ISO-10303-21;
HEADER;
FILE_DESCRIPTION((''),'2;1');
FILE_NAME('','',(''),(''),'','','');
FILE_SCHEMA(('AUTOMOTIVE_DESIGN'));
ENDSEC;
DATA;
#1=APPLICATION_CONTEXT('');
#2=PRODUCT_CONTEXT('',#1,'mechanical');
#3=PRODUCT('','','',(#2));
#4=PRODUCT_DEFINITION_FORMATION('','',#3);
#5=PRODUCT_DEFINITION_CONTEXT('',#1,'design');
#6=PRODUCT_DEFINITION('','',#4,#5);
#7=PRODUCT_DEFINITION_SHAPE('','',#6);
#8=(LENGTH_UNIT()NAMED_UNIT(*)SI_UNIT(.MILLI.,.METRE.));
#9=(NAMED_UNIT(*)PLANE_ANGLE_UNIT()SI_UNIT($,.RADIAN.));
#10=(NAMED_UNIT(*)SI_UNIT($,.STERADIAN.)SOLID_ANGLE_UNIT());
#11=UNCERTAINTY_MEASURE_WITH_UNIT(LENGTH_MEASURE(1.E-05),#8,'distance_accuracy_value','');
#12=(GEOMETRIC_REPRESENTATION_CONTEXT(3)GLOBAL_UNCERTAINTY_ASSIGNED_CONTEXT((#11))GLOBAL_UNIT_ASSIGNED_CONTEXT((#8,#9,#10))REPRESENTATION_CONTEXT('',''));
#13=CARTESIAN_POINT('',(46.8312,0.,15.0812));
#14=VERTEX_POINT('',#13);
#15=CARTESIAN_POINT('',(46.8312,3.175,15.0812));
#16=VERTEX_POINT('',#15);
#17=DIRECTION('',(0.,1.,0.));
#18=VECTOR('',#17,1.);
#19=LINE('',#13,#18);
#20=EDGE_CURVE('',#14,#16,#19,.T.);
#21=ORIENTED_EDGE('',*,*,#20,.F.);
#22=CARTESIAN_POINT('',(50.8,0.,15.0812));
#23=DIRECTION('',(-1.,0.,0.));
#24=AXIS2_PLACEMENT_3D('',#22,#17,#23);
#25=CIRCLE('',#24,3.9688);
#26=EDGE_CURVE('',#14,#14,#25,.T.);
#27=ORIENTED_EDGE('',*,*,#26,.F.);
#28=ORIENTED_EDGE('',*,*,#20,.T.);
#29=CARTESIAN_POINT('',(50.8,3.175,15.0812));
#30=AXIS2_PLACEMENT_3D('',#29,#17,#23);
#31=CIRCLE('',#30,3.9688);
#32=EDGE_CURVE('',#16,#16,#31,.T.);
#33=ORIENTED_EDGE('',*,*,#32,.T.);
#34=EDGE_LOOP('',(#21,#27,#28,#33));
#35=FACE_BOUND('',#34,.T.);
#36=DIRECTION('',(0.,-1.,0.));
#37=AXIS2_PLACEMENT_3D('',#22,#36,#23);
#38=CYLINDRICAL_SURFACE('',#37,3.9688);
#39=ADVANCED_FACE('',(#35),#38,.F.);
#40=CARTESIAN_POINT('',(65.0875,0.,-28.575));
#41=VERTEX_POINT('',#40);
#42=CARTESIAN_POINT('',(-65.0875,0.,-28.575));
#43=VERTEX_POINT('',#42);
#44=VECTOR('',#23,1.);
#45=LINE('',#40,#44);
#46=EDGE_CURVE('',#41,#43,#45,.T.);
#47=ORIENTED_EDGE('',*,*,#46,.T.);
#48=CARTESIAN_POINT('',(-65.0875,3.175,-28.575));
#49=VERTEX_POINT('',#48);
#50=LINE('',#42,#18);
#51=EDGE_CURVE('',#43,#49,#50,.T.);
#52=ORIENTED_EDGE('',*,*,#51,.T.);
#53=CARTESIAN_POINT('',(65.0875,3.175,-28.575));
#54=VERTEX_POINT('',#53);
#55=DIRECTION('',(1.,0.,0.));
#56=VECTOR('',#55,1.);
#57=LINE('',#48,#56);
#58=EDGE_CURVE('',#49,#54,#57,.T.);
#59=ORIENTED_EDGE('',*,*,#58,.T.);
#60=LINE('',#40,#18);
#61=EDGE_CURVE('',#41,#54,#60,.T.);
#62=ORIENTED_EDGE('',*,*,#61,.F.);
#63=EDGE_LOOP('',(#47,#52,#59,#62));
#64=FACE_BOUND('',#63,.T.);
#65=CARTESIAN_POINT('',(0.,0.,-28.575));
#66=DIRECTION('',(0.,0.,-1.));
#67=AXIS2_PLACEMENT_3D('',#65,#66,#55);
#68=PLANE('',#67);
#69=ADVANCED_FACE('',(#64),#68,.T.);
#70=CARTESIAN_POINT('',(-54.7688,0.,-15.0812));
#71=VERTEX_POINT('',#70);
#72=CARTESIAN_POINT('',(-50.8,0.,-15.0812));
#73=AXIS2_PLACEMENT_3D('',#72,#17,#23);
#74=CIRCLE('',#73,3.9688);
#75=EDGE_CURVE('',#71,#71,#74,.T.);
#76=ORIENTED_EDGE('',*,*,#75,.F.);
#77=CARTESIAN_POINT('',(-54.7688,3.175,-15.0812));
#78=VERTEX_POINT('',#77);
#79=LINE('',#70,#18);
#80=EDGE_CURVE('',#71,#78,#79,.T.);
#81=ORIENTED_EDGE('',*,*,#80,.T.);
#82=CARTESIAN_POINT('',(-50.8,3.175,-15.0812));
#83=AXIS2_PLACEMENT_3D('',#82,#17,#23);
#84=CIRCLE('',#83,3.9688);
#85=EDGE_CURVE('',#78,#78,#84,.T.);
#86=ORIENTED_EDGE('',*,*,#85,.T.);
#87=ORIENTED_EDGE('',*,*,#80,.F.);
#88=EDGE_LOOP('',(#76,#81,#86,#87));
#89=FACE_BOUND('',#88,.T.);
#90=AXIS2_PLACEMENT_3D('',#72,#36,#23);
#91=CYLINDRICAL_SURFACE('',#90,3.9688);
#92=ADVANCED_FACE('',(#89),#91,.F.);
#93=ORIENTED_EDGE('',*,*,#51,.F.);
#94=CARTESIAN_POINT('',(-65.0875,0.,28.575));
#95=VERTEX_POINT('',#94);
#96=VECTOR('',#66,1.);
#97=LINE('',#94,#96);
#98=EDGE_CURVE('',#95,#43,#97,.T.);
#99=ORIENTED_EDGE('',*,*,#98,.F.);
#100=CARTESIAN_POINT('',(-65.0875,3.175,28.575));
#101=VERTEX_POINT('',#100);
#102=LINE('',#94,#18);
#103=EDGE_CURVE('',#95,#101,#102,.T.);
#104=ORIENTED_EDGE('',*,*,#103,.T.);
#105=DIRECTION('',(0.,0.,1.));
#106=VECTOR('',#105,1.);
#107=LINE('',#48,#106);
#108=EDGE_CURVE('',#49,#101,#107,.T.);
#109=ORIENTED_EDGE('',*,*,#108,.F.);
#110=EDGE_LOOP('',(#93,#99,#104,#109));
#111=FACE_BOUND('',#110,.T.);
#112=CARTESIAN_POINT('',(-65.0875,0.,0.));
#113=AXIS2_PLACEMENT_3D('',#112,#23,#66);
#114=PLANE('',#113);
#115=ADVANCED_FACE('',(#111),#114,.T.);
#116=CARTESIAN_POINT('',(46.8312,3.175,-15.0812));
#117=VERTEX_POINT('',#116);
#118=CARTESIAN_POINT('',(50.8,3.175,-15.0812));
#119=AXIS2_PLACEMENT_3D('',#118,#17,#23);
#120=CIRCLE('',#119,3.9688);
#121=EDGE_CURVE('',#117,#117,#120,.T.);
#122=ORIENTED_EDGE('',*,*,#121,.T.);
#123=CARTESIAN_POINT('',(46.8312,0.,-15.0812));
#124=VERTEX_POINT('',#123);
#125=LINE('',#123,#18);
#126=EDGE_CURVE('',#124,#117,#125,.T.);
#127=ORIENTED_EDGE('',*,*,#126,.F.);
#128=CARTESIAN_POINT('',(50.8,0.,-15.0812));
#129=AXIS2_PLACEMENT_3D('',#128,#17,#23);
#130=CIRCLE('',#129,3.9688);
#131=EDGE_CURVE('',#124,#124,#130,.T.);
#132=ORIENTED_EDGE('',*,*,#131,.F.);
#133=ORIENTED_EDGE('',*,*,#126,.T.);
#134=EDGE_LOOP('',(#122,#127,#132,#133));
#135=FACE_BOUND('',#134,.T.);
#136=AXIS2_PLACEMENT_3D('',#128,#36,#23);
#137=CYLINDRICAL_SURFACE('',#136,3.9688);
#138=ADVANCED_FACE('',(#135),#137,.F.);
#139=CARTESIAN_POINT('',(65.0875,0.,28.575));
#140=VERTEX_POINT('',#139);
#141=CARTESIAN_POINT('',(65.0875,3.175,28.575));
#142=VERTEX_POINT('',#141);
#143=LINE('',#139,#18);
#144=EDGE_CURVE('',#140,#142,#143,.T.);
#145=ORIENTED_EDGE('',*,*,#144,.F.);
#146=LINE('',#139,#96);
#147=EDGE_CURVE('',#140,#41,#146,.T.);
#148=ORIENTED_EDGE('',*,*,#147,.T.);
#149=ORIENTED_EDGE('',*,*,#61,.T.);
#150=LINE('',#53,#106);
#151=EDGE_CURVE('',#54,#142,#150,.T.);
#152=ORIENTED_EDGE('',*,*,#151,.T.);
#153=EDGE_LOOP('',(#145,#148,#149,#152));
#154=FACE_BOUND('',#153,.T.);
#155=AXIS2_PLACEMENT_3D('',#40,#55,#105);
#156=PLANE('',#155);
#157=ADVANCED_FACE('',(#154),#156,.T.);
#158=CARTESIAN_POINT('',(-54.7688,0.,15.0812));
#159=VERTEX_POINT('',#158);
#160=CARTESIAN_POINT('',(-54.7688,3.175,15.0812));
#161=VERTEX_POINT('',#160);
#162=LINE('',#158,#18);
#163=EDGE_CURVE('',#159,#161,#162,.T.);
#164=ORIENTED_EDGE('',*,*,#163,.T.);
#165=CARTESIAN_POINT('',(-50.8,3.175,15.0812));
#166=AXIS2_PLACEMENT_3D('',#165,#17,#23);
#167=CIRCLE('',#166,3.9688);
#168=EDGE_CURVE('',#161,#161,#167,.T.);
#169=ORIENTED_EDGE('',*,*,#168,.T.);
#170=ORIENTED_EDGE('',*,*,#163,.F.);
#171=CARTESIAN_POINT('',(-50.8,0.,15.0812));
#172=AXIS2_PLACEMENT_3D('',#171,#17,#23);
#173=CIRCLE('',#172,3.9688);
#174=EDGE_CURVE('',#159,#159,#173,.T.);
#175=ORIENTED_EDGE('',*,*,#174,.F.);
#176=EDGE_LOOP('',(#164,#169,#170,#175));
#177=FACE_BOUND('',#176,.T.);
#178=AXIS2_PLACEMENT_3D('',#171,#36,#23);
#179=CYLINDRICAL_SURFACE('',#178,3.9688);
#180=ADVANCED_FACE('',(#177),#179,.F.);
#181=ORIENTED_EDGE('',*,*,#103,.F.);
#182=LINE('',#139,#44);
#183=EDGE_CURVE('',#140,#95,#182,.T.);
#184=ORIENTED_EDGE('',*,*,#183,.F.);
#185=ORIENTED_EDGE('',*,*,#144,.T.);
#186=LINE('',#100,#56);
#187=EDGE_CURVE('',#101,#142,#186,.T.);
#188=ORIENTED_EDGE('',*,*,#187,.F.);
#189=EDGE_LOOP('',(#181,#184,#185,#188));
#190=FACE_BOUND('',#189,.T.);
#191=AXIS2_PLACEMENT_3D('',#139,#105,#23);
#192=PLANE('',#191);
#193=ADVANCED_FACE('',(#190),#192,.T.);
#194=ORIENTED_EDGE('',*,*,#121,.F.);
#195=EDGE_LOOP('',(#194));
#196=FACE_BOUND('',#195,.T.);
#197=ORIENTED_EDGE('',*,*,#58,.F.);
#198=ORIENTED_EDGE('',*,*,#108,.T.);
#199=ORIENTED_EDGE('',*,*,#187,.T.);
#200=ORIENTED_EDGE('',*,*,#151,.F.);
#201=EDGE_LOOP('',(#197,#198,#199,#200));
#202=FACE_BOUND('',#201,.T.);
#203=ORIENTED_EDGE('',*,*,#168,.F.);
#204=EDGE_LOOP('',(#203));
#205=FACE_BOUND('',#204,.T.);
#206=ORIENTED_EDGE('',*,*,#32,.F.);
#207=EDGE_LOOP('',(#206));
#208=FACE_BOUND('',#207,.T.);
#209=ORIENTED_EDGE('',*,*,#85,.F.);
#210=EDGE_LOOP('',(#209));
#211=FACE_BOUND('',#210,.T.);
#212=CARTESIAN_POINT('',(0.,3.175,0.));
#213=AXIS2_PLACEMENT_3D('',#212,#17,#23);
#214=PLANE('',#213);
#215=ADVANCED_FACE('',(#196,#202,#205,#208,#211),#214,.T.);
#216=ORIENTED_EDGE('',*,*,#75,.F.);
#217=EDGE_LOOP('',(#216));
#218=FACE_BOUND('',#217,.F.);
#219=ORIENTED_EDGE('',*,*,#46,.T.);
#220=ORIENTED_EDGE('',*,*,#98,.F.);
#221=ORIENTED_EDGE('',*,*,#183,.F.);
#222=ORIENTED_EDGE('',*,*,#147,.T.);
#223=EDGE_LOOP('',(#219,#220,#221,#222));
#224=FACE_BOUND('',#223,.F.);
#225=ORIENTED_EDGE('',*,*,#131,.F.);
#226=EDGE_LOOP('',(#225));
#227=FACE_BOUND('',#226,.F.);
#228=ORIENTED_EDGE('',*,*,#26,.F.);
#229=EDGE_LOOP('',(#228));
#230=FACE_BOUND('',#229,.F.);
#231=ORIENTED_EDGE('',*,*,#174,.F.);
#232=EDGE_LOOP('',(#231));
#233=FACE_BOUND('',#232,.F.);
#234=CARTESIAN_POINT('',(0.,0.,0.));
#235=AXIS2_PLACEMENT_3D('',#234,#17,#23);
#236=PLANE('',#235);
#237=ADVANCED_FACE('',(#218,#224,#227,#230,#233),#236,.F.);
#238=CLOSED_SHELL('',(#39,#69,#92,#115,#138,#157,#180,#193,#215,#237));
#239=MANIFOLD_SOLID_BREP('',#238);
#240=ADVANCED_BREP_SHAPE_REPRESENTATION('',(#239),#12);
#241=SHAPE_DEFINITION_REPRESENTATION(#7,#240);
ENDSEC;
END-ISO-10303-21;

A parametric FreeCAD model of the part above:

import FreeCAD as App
import Part
import Sketcher

V = App.Vector
Q = App.Units.Quantity

doc = App.newDocument("Part")
body = doc.addObject("PartDesign::Body", "Body")

sketch1 = body.newObject("Sketcher::SketchObject", "Sketch")
sketch1.AttachmentSupport = (doc.getObject("XZ_Plane"), [""])
sketch1.MapMode = "FlatFace"
sketch1.addGeometry([
    Part.LineSegment(V(65.1, -28.6, 0), V(-65.1, -28.6, 0)),
    Part.LineSegment(V(-65.1, -28.6, 0), V(-65.1, 28.6, 0)),
    Part.LineSegment(V(-65.1, 28.6, 0), V(65.1, 28.6, 0)),
    Part.LineSegment(V(65.1, 28.6, 0), V(65.1, -28.6, 0)),
    Part.Circle(V(50.8, -15.1, 0), V(0, 0, 1), 4),
    Part.Circle(V(50.8, 15.1, 0), V(0, 0, 1), 4),
    Part.Circle(V(-50.8, -15.1, 0), V(0, 0, 1), 4),
    Part.Circle(V(-50.8, 15.1, 0), V(0, 0, 1), 4),
], False)
sketch1.addConstraint([
    Sketcher.Constraint("Coincident", 0, 2, 1, 1),
    Sketcher.Constraint("Coincident", 1, 2, 2, 1),
    Sketcher.Constraint("Coincident", 2, 2, 3, 1),
    Sketcher.Constraint("Coincident", 3, 2, 0, 1),
    Sketcher.Constraint("Horizontal", 0),
    Sketcher.Constraint("Vertical", 1),
    Sketcher.Constraint("Horizontal", 2),
    Sketcher.Constraint("Vertical", 3),
    Sketcher.Constraint("Equal", 4, 5),
    Sketcher.Constraint("Equal", 5, 6),
    Sketcher.Constraint("Equal", 6, 7),
    Sketcher.Constraint("Symmetric", 5, 3, 6, 3, -1, 1),
    Sketcher.Constraint("Symmetric", 4, 3, 7, 3, -1, 1),
    Sketcher.Constraint("Symmetric", 0, 2, 2, 2, -1, 1),
    Sketcher.Constraint("Symmetric", 4, 3, 6, 3, -2),
    Sketcher.Constraint("Diameter", 4, Q("0.3125 in")),
    Sketcher.Constraint("DistanceX", -1, 1, 4, 3, Q("2 in")),
    Sketcher.Constraint("DistanceY", 1, 1, 1, 2, Q("2.25 in")),
    Sketcher.Constraint("DistanceX", 0, 2, 0, 1, Q("5.125 in")),
    Sketcher.Constraint("DistanceY", 4, 3, -1, 1, Q("0.593748 in")),
])
pad1 = body.newObject("PartDesign::Pad", "Pad")
pad1.Profile = sketch1
pad1.Length = Q("0.125 in")
pad1.Reversed = True

doc.recompute()
